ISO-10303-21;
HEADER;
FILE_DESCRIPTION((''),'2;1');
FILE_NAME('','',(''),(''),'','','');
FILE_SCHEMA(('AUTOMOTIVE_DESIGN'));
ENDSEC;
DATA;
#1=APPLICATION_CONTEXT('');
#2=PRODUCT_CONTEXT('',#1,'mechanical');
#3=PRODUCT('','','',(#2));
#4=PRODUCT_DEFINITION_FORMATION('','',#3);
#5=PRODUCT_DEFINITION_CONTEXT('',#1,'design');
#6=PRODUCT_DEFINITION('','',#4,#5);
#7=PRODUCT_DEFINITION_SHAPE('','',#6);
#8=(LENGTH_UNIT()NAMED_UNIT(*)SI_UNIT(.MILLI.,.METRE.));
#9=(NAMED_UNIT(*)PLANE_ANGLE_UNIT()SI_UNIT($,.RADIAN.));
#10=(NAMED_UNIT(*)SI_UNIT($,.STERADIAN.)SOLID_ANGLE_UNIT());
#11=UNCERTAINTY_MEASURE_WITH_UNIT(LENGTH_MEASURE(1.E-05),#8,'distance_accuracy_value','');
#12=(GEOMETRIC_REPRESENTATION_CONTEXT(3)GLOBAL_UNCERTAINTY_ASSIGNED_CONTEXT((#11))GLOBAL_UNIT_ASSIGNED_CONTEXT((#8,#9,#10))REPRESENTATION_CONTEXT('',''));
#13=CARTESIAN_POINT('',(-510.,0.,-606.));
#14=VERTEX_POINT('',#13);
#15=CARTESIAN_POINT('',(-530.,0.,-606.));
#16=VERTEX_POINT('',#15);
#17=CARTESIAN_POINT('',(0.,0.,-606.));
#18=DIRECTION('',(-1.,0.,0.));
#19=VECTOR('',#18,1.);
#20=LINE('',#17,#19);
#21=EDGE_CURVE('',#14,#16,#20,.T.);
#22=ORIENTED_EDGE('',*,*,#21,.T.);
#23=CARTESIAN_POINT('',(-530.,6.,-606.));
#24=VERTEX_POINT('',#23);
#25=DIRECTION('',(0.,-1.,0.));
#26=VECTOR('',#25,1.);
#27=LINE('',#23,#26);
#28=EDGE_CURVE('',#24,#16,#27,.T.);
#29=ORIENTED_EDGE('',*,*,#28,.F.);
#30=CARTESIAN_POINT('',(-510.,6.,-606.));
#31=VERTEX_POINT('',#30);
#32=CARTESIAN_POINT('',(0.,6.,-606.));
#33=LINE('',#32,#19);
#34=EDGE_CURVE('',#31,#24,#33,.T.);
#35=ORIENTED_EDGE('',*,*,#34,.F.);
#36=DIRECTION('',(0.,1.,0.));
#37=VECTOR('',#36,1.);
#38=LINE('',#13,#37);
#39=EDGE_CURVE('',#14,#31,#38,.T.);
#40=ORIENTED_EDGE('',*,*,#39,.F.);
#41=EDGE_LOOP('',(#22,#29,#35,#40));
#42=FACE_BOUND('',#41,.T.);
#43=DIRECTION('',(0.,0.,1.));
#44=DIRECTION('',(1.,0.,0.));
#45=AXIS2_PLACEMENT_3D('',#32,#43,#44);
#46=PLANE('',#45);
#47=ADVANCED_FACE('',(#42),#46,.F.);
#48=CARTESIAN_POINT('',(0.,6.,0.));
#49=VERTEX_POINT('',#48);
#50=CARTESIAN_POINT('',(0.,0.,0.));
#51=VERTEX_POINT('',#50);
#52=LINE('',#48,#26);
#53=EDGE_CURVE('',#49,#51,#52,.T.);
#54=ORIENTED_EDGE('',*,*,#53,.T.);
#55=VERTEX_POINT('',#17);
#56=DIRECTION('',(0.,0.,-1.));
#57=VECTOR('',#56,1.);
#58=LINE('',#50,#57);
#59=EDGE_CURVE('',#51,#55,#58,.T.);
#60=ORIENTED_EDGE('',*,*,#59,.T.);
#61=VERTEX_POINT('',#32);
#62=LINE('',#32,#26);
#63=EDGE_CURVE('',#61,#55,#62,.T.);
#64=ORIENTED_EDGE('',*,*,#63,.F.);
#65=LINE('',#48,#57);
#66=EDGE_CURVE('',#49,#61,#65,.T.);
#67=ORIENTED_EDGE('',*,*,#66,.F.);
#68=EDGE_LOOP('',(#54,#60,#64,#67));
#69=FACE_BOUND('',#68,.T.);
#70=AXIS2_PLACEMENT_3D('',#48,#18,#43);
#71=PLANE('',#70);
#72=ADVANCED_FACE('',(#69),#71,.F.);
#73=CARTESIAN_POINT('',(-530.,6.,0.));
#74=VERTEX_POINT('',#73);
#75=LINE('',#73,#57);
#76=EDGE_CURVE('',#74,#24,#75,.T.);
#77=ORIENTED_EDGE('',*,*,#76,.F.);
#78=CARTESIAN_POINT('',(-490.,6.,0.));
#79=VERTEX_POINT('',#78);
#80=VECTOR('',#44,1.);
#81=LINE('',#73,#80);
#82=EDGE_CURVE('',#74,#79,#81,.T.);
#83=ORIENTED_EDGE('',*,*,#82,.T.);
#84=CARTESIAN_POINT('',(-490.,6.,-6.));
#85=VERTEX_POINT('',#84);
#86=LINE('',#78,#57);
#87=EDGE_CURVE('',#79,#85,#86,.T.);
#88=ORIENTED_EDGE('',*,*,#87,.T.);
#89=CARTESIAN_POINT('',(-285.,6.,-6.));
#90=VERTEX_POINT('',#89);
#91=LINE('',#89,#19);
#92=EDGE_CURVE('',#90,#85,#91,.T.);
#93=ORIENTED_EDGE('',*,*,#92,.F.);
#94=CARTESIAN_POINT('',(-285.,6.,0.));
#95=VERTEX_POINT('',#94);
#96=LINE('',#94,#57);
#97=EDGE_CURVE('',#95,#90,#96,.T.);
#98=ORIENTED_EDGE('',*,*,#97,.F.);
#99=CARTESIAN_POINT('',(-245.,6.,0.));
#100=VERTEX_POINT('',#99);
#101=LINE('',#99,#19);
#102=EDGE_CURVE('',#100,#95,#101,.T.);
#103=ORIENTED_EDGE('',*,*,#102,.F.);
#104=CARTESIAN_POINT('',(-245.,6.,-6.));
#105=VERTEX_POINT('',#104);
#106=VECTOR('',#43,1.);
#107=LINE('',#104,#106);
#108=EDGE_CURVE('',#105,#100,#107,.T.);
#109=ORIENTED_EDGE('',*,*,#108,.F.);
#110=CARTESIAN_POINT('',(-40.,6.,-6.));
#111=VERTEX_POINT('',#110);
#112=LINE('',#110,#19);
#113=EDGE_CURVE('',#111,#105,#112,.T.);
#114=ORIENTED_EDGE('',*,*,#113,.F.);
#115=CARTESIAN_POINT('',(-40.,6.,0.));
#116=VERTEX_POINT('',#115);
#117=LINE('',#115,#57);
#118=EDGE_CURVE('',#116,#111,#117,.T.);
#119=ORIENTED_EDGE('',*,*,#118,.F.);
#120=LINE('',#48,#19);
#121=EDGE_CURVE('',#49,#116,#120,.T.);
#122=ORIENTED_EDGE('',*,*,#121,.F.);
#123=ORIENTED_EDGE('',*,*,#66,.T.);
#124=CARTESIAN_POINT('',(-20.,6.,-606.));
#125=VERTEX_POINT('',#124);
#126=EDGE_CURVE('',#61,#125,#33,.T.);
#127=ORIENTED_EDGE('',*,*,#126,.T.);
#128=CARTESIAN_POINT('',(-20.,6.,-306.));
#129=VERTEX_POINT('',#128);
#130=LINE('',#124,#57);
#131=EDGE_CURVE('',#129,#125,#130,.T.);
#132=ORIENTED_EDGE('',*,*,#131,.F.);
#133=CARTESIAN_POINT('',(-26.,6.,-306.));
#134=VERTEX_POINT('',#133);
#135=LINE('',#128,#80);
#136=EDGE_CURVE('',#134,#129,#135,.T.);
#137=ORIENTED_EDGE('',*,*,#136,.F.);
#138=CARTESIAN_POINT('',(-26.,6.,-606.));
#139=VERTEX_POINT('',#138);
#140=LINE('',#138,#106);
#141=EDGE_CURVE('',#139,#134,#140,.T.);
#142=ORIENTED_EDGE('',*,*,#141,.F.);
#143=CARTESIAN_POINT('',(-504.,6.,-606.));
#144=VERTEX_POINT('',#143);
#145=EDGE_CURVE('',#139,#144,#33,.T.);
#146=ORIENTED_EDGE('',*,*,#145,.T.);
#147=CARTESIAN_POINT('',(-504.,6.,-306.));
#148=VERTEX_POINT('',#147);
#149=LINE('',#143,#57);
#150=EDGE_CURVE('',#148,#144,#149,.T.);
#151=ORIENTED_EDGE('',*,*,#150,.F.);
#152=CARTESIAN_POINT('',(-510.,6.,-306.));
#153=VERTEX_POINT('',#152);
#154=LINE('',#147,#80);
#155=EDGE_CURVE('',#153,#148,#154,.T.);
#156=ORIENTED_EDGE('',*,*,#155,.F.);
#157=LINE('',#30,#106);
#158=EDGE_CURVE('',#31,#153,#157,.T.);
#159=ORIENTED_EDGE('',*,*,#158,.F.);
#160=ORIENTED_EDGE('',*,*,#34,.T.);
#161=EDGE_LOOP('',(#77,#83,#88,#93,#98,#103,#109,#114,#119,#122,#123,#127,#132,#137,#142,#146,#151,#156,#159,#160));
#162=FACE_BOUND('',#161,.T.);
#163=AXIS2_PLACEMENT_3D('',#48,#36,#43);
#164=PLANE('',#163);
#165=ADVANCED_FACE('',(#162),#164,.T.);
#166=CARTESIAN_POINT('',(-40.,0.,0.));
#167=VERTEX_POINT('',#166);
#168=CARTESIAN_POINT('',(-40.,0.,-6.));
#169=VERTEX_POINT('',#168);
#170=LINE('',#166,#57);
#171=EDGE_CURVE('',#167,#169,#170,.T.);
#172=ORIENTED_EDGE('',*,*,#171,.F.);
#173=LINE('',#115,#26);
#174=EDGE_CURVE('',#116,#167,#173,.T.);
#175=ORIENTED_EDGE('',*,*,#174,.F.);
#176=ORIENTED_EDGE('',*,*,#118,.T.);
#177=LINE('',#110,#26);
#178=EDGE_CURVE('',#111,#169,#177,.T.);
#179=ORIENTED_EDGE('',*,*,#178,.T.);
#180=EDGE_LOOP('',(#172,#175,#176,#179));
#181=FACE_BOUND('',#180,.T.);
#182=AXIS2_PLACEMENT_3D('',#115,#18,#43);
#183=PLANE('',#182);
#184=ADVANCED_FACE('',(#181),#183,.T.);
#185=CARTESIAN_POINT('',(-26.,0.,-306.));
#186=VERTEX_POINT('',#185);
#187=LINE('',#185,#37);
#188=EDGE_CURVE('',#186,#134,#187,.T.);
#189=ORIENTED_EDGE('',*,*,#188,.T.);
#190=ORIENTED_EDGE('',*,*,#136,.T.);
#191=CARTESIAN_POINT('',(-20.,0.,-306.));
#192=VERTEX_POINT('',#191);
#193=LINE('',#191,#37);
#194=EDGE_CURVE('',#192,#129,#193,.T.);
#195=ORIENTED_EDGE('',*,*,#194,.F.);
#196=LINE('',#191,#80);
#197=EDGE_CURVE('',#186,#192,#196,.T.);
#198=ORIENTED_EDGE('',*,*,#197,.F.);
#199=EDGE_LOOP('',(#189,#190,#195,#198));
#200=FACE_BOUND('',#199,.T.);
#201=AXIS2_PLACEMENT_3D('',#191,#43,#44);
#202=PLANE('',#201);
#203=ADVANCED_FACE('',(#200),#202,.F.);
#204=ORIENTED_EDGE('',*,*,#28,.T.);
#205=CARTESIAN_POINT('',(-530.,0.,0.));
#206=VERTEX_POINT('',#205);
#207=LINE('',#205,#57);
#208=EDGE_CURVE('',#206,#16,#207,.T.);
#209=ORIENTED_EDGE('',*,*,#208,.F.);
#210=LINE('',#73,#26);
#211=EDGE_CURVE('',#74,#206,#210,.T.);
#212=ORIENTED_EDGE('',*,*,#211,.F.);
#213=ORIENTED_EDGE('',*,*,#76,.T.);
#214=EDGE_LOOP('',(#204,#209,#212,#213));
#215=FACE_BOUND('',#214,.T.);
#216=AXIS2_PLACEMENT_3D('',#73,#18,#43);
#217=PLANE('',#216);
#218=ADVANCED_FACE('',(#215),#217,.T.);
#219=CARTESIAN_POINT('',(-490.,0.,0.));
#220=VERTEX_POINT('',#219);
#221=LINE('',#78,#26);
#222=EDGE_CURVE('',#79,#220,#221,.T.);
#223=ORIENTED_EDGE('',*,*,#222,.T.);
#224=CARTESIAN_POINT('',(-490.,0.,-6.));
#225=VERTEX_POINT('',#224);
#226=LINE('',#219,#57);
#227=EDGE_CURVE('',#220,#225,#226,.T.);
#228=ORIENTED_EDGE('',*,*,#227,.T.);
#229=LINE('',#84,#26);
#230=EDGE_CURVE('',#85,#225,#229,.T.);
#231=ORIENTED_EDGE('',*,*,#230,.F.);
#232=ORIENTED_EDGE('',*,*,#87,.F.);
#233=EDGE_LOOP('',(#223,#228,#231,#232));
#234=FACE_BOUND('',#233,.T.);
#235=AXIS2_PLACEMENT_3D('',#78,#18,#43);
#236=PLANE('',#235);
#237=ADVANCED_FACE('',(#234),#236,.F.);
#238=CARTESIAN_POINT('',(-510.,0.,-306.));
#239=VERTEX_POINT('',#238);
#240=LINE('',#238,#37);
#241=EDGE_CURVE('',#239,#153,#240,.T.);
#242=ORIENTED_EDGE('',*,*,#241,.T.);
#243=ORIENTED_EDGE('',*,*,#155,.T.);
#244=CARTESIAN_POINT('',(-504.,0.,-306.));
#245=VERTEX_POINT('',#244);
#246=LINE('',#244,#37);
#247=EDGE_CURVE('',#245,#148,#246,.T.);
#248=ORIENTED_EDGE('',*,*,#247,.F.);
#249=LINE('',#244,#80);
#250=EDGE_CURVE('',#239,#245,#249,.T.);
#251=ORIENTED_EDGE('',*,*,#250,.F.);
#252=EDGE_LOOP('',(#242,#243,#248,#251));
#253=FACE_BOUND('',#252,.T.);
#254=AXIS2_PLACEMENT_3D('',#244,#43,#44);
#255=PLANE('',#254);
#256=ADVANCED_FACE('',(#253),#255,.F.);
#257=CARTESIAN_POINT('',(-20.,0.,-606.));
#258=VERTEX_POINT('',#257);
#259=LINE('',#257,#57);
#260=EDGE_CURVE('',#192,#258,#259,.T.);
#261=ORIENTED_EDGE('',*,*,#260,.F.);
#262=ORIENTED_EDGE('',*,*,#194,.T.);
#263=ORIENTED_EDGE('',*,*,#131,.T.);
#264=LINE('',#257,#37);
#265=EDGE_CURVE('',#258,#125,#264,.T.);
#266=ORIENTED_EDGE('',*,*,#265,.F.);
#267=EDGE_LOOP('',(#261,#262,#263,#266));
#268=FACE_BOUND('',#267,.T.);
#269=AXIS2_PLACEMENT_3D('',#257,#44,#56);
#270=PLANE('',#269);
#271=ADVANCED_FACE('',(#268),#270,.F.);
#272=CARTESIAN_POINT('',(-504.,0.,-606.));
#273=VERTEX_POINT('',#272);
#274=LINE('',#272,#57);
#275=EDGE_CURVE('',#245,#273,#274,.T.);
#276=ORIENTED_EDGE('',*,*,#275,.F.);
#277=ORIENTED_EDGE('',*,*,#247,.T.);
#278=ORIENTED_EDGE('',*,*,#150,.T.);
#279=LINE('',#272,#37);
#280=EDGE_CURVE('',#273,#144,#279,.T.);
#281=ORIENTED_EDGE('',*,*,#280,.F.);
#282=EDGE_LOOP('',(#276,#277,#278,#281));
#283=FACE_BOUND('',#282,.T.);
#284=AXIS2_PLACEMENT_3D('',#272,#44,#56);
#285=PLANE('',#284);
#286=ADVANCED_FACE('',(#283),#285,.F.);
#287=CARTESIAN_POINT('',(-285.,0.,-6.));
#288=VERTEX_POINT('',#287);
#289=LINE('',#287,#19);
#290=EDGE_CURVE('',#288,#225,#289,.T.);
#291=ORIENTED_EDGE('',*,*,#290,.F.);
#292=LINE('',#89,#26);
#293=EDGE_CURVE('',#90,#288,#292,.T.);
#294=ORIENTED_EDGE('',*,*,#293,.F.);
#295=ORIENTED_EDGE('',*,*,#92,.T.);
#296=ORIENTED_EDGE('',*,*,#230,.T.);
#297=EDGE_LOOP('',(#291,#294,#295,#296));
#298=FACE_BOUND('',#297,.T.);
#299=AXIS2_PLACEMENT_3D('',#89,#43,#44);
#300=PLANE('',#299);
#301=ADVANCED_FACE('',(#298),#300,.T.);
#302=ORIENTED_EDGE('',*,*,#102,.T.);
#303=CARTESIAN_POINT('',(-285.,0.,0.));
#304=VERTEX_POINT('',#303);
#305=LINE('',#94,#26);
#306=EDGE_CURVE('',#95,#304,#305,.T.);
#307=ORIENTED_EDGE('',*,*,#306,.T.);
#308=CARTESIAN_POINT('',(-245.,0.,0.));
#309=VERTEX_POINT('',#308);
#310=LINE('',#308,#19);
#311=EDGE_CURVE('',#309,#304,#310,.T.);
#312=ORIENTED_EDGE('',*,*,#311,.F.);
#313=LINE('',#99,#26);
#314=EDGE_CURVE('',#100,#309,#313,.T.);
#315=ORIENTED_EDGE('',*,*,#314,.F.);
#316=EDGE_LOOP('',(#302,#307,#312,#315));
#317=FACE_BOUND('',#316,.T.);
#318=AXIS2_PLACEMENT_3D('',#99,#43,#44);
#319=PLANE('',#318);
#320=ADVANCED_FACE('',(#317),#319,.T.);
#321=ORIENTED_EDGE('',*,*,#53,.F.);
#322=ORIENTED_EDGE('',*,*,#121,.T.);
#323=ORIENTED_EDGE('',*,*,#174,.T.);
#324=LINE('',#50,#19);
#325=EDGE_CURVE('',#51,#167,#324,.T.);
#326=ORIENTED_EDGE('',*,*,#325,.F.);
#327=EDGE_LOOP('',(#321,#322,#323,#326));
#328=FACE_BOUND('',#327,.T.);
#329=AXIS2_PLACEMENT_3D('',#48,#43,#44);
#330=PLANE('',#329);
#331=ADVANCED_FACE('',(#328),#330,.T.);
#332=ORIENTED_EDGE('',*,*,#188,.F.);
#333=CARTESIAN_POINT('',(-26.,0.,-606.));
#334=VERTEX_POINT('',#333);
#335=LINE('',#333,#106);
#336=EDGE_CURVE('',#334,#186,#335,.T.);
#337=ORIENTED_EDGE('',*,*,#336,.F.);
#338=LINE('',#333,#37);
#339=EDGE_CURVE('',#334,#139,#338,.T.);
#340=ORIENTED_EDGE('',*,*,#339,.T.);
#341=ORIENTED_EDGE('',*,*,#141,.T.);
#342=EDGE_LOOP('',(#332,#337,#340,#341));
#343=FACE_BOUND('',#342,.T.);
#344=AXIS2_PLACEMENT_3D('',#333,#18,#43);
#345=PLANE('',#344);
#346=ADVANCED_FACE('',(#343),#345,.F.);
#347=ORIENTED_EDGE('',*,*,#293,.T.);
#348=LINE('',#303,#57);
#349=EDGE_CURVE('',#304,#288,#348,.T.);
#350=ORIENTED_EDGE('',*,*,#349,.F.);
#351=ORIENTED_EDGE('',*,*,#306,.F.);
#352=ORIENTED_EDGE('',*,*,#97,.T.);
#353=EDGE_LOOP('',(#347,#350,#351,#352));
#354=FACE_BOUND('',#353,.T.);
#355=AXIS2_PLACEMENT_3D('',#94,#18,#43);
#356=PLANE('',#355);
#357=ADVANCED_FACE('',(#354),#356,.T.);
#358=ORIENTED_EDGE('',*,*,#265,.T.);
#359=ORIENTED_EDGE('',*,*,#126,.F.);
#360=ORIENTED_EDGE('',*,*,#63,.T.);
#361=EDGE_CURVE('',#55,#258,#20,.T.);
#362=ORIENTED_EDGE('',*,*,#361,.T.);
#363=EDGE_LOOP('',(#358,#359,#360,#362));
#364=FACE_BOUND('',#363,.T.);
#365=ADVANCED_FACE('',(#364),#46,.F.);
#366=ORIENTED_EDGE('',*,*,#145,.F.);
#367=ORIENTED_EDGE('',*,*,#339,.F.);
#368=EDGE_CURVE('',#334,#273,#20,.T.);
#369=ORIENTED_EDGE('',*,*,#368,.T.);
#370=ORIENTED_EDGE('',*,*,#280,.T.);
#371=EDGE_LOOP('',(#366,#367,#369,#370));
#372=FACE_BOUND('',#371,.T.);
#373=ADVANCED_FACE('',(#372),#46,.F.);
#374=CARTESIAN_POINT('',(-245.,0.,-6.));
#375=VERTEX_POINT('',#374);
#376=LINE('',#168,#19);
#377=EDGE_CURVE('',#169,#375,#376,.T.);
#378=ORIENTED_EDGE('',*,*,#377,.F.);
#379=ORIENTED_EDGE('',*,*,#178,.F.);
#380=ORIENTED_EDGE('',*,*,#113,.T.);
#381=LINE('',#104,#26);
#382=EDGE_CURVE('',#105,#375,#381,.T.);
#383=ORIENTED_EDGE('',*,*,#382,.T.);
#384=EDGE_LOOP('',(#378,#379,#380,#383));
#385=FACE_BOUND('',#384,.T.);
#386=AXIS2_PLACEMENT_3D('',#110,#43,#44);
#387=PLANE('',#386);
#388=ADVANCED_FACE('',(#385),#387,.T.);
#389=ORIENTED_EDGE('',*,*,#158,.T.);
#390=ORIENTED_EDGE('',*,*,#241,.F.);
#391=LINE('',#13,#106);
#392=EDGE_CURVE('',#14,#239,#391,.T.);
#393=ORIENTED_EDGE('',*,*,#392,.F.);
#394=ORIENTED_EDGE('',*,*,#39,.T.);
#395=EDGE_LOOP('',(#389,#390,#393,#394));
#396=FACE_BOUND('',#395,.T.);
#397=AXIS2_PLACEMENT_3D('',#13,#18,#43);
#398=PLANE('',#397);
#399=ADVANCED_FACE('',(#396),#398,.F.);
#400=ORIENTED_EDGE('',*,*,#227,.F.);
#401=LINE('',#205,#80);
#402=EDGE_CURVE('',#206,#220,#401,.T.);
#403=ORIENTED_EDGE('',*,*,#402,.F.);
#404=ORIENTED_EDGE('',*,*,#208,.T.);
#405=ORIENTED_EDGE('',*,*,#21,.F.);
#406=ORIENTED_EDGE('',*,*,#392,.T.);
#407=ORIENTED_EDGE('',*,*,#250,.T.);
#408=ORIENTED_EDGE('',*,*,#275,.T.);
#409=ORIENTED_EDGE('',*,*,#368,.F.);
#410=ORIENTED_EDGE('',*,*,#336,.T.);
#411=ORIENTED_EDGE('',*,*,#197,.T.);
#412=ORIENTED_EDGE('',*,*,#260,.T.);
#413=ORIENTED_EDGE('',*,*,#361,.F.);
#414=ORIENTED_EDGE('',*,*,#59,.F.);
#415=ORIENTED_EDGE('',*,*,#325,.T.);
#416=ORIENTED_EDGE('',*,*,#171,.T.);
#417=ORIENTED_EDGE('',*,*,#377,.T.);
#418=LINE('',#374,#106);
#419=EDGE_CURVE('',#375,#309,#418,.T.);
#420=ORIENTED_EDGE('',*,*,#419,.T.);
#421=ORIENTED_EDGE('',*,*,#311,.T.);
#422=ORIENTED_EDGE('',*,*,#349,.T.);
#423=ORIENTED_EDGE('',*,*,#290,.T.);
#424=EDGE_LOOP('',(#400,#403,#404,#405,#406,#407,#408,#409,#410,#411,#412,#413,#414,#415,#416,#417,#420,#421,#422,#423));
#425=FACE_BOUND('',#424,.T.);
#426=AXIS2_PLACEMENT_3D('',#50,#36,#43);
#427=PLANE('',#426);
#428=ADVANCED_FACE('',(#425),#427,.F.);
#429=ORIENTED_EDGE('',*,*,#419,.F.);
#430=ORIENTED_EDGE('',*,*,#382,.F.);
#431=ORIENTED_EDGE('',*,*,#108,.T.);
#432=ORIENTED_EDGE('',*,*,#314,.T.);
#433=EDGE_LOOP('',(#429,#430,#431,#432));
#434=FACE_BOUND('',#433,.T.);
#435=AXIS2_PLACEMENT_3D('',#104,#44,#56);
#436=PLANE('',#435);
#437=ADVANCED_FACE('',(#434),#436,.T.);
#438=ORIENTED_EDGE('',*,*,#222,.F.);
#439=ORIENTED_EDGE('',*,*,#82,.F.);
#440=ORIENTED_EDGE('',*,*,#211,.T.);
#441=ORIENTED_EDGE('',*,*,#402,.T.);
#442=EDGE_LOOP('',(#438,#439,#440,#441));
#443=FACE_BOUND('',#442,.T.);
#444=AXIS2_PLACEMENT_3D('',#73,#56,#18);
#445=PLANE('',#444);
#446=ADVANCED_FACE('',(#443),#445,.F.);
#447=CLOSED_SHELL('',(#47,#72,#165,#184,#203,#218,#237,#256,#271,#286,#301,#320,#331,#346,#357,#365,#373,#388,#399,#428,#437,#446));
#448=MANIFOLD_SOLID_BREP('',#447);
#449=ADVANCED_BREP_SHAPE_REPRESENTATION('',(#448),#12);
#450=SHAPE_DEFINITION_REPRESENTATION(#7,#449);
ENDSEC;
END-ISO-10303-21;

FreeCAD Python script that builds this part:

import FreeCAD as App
import Part
import Sketcher
Q = App.Units.Quantity


def add_polygon(sketch, points):
    """Adds a closed chain of lines whose ends are joined by coincident constraints."""
    first, n = sketch.GeometryCount, len(points)
    for a, b in zip(points, points[1:] + points[:1]):
        sketch.addGeometry(Part.LineSegment(App.Vector(*a, 0), App.Vector(*b, 0)), False)
    for i in range(n):
        sketch.addConstraint(Sketcher.Constraint("Coincident", first + i, 2, first + (i + 1) % n, 1))

doc = App.newDocument("Part")
body = doc.addObject("PartDesign::Body", "Body")

sketch1 = doc.addObject("Sketcher::SketchObject", "Sketch")
body.addObject(sketch1)
sketch1.AttachmentSupport = (doc.XZ_Plane, [""])
sketch1.MapMode = "FlatFace"
add_polygon(sketch1, [(-530, 0), (-490, 0), (-490, -6), (-285, -6), (-285, 0), (-245, 0), (-245, -6), (-40, -6), (-40, 0), (0, 0), (0, -606), (-530, -606)])
sketch1.addConstraint(Sketcher.Constraint("Horizontal", 0))
sketch1.addConstraint(Sketcher.Constraint("Vertical", 1))
sketch1.addConstraint(Sketcher.Constraint("Horizontal", 2))
sketch1.addConstraint(Sketcher.Constraint("Vertical", 3))
sketch1.addConstraint(Sketcher.Constraint("Horizontal", 4))
sketch1.addConstraint(Sketcher.Constraint("Vertical", 5))
sketch1.addConstraint(Sketcher.Constraint("Horizontal", 6))
sketch1.addConstraint(Sketcher.Constraint("Vertical", 7))
sketch1.addConstraint(Sketcher.Constraint("Horizontal", 8))
sketch1.addConstraint(Sketcher.Constraint("Vertical", 9))
sketch1.addConstraint(Sketcher.Constraint("Horizontal", 10))
sketch1.addConstraint(Sketcher.Constraint("Vertical", 11))
sketch1.addConstraint(Sketcher.Constraint("Coincident", 8, 2, -1, 1))
sketch1.addConstraint(Sketcher.Constraint("PointOnObject", 0, 2, -1))
sketch1.addConstraint(Sketcher.Constraint("PointOnObject", 3, 2, -1))
sketch1.addConstraint(Sketcher.Constraint("Horizontal", 2, 2, 5, 2))
sketch1.addConstraint(Sketcher.Constraint("Equal", 0, 4))
sketch1.addConstraint(Sketcher.Constraint("Equal", 2, 6))
sketch1.addConstraint(Sketcher.Constraint("Equal", 4, 8))
sketch1.addConstraint(Sketcher.Constraint("DistanceX", 0, 1, 0, 2, Q("40 mm")))
sketch1.addConstraint(Sketcher.Constraint("DistanceX", 2, 1, 2, 2, Q("205 mm")))
sketch1.addConstraint(Sketcher.Constraint("DistanceY", 1, 2, 1, 1, Q("6 mm")))
sketch1.addConstraint(Sketcher.Constraint("DistanceY", 9, 2, 9, 1, Q("606 mm")))
pad1 = doc.addObject("PartDesign::Pad", "Pad")
body.addObject(pad1)
pad1.Profile = sketch1
pad1.Length = 6
pad1.Reversed = True

sketch2 = doc.addObject("Sketcher::SketchObject", "Sketch001")
body.addObject(sketch2)
sketch2.AttachmentSupport = (doc.XZ_Plane, [""])
sketch2.MapMode = "FlatFace"
sketch2.AttachmentOffset = App.Placement(App.Vector(0, 0, -6), App.Rotation())
add_polygon(sketch2, [(-26, -606), (-26, -306), (-20, -306), (-20, -606)])
sketch2.addConstraint(Sketcher.Constraint("Vertical", 0))
sketch2.addConstraint(Sketcher.Constraint("Horizontal", 1))
sketch2.addConstraint(Sketcher.Constraint("Vertical", 2))
sketch2.addConstraint(Sketcher.Constraint("Horizontal", 3))
sketch2.addConstraint(Sketcher.Constraint("DistanceX", 1, 1, 1, 2, Q("6 mm")))
sketch2.addConstraint(Sketcher.Constraint("DistanceY", 0, 1, 0, 2, Q("300 mm")))
sketch2.addConstraint(Sketcher.Constraint("DistanceX", 0, 2, -1, 1, Q("26 mm")))
sketch2.addConstraint(Sketcher.Constraint("DistanceY", 0, 2, -1, 1, Q("306 mm")))
pocket1 = doc.addObject("PartDesign::Pocket", "Pocket")
body.addObject(pocket1)
pocket1.Profile = sketch2
pocket1.Length = 6
pocket1.Reversed = True
doc.recompute()

linearpattern = doc.addObject("PartDesign::LinearPattern", "LinearPattern")
body.addObject(linearpattern)
linearpattern.Originals = [pocket1]
linearpattern.Direction = (doc.X_Axis, [""])
linearpattern.Mode = "offset"
linearpattern.Offset = 484
linearpattern.Occurrences = 2
linearpattern.Reversed = True
body.Tip = linearpattern

doc.recompute()
